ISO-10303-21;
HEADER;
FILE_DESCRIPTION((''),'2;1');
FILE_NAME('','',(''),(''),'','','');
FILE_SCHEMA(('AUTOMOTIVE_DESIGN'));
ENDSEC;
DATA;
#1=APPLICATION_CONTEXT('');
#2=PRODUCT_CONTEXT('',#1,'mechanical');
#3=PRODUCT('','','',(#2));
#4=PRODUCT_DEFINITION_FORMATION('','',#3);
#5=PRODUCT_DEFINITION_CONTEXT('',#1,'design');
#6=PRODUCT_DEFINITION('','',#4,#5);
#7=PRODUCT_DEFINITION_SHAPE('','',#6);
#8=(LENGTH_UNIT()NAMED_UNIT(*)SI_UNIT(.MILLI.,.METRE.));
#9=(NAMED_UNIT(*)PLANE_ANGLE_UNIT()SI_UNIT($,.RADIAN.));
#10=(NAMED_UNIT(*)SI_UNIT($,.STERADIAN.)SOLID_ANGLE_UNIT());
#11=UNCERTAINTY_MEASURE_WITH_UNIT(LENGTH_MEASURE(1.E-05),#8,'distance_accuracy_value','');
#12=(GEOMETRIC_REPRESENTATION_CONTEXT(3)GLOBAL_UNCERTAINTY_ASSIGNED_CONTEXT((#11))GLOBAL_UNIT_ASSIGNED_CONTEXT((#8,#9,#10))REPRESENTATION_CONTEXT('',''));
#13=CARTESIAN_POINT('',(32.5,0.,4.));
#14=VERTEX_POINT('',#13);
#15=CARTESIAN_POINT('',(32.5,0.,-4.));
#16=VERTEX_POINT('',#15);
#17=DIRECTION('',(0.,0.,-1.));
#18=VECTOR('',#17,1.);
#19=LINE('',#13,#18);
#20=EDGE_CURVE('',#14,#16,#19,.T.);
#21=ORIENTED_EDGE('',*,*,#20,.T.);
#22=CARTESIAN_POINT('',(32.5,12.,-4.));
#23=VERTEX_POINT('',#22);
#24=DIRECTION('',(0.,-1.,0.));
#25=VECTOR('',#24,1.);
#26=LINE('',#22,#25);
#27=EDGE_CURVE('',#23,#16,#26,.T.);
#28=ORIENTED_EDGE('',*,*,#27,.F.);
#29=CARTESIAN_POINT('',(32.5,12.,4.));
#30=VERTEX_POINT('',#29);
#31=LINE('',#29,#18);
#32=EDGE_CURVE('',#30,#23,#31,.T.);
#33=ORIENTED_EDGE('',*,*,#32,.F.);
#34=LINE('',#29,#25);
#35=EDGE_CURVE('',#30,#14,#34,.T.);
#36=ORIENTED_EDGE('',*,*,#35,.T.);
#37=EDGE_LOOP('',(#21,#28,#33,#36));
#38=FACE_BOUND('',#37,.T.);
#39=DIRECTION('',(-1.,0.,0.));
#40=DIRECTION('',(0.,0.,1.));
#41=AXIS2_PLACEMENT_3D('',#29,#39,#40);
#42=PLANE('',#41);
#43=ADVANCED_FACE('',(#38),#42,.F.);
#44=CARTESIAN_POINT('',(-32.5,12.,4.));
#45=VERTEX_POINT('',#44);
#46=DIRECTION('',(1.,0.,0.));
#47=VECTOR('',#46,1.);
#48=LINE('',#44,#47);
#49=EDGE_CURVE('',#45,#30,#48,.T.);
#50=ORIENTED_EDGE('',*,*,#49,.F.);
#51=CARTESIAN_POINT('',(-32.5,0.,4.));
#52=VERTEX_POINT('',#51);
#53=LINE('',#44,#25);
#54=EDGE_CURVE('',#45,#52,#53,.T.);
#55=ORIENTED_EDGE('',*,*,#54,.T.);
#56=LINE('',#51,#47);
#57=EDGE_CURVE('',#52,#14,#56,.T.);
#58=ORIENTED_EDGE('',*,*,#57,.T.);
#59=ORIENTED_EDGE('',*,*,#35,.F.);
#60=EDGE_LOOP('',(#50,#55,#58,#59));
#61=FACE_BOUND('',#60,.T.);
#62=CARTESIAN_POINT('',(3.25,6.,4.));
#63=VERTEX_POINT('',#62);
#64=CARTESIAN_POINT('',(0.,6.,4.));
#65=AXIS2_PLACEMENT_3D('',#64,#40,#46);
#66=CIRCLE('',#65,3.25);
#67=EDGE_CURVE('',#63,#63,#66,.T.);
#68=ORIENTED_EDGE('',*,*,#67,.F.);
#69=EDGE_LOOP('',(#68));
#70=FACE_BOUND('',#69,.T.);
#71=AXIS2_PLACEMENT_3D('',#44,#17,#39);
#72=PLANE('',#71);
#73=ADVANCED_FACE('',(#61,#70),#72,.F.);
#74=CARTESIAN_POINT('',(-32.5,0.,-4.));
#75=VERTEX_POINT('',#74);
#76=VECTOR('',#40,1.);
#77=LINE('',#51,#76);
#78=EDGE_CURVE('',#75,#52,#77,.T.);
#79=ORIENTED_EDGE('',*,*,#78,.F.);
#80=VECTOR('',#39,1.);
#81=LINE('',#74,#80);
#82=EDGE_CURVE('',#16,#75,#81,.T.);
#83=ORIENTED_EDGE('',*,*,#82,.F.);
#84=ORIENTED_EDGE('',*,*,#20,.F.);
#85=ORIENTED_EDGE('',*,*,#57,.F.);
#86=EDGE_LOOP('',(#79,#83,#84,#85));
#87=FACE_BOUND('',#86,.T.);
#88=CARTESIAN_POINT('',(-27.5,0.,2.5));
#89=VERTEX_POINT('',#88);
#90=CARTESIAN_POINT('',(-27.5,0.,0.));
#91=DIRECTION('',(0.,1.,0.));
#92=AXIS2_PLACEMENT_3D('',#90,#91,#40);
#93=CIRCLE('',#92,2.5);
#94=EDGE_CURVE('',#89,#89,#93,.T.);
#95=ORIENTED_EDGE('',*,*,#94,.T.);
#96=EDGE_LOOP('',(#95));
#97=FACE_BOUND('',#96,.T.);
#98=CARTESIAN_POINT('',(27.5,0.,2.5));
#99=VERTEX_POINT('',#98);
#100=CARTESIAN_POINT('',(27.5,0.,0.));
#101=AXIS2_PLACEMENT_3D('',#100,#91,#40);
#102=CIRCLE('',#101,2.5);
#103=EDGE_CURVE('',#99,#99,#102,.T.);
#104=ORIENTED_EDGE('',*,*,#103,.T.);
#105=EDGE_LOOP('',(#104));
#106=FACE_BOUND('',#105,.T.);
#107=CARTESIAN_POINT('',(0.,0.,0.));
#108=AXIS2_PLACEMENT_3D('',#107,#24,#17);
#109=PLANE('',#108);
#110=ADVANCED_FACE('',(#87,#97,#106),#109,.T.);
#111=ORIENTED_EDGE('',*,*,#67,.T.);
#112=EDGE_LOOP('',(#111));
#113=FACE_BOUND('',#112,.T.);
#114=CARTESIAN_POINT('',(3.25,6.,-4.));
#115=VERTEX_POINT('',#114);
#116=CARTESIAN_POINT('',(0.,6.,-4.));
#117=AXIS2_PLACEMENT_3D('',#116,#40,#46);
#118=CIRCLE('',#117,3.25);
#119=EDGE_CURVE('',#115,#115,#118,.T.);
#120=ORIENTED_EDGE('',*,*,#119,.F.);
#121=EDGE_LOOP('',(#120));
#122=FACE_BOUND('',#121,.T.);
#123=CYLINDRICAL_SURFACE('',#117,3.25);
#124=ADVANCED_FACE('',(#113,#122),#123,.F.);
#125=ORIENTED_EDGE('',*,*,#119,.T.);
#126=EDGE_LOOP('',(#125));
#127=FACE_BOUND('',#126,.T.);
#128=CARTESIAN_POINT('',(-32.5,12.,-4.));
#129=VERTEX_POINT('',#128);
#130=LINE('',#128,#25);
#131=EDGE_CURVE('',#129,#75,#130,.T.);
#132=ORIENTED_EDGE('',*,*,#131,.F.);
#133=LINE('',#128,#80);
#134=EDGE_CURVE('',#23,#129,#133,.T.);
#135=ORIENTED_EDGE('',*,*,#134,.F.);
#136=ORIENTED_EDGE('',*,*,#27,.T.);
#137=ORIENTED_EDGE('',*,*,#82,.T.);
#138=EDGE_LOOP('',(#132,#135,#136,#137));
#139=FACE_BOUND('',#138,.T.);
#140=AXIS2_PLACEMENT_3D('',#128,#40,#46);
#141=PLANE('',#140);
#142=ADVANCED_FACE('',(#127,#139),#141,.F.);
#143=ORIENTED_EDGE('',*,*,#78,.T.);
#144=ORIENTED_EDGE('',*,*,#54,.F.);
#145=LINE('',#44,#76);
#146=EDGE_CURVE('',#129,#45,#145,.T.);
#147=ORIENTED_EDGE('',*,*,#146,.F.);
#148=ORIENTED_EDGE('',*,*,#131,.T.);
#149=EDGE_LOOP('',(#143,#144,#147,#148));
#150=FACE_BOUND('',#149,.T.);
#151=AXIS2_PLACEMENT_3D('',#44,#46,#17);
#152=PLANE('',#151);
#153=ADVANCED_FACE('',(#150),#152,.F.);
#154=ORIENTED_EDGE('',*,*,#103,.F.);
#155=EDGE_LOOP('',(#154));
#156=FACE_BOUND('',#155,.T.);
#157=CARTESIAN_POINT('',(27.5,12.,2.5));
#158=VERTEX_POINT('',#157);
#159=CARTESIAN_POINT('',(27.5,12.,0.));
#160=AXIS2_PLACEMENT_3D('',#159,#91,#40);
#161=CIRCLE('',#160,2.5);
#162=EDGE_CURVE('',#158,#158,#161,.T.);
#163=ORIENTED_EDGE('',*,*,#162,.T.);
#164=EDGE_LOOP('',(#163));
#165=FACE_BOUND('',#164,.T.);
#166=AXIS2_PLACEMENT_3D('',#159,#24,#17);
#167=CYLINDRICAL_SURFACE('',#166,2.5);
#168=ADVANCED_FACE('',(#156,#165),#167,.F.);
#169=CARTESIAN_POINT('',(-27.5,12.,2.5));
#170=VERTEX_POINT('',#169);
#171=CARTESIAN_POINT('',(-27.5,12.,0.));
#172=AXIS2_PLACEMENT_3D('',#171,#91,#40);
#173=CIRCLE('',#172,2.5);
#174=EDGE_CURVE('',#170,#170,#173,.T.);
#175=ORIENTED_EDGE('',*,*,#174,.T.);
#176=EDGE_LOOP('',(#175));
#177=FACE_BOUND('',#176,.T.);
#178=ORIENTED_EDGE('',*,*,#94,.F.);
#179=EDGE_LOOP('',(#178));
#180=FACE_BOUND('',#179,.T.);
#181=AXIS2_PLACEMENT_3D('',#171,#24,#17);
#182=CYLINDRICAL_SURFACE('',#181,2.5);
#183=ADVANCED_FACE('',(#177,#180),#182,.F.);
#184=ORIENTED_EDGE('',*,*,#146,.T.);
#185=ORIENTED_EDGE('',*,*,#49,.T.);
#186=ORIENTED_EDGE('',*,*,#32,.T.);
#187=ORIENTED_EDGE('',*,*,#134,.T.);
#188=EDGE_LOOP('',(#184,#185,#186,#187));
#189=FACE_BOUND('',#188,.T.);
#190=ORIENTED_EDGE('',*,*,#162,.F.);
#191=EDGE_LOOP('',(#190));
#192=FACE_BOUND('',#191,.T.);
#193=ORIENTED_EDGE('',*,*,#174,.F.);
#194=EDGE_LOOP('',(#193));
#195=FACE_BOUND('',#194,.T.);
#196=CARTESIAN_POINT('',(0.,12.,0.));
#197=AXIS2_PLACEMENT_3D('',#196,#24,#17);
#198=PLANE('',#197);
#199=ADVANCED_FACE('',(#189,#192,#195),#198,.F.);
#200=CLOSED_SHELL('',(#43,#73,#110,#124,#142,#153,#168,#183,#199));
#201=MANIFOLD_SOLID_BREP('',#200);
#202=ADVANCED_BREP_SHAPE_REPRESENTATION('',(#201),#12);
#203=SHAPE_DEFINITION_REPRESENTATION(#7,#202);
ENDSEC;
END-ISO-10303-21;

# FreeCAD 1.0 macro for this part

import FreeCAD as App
import Part
import Sketcher
Q = App.Units.Quantity

doc = App.newDocument("Part")
body = doc.addObject("PartDesign::Body", "Body")

# Sketch on XZ plane
sketch1 = doc.addObject("Sketcher::SketchObject", "Sketch")
body.addObject(sketch1)
sketch1.AttachmentSupport = (doc.XZ_Plane, [""])
sketch1.MapMode = "FlatFace"
sketch1.addGeometry([
    Part.LineSegment(App.Vector(-32.5, -4, 0), App.Vector(-32.5, 4, 0)),  # 0
    Part.LineSegment(App.Vector(-32.5, 4, 0), App.Vector(32.5, 4, 0)),  # 1
    Part.LineSegment(App.Vector(32.5, 4, 0), App.Vector(32.5, -4, 0)),  # 2
    Part.LineSegment(App.Vector(32.5, -4, 0), App.Vector(-32.5, -4, 0)),  # 3
    Part.Circle(App.Vector(-27.5, 0, 0), App.Vector(0, 0, 1), 2.5),  # 4
    Part.Circle(App.Vector(27.5, 0, 0), App.Vector(0, 0, 1), 2.5),  # 5
], False)
sketch1.addConstraint([
    Sketcher.Constraint("Coincident", 0, 2, 1, 1),
    Sketcher.Constraint("Coincident", 1, 2, 2, 1),
    Sketcher.Constraint("Coincident", 2, 2, 3, 1),
    Sketcher.Constraint("Coincident", 3, 2, 0, 1),
    Sketcher.Constraint("Vertical", 0),
    Sketcher.Constraint("Horizontal", 1),
    Sketcher.Constraint("Vertical", 2),
    Sketcher.Constraint("Horizontal", 3),
    Sketcher.Constraint("Equal", 4, 5),
    Sketcher.Constraint("Symmetric", 4, 3, 5, 3, -1, 1),
    Sketcher.Constraint("Symmetric", 0, 2, 2, 2, -1, 1),
    Sketcher.Constraint("PointOnObject", 4, 3, -1),
    Sketcher.Constraint("Diameter", 4, Q("5 mm")),
    Sketcher.Constraint("DistanceX", 1, 1, 1, 2, Q("65 mm")),
    Sketcher.Constraint("DistanceY", 0, 1, 0, 2, Q("8 mm")),
    Sketcher.Constraint("DistanceX", 4, 3, 5, 3, Q("55 mm")),
])
pad1 = doc.addObject("PartDesign::Pad", "Pad")
body.addObject(pad1)
pad1.Profile = sketch1
pad1.Length = 12
pad1.Reversed = True

# Sketch on XY plane
sketch2 = doc.addObject("Sketcher::SketchObject", "Sketch001")
body.addObject(sketch2)
sketch2.AttachmentSupport = (doc.XY_Plane, [""])
sketch2.MapMode = "FlatFace"
sketch2.AttachmentOffset = App.Placement(App.Vector(0, 0, 4), App.Rotation())
sketch2.addGeometry(Part.Circle(App.Vector(0, 6, 0), App.Vector(0, 0, 1), 3.25), False)
sketch2.addConstraint([
    Sketcher.Constraint("PointOnObject", 0, 3, -2),
    Sketcher.Constraint("Diameter", 0, Q("6.5 mm")),
    Sketcher.Constraint("DistanceY", -1, 1, 0, 3, Q("6 mm")),
])
pocket1 = doc.addObject("PartDesign::Pocket", "Pocket")
body.addObject(pocket1)
pocket1.Profile = sketch2
pocket1.Type = "ThroughAll"

doc.recompute()
